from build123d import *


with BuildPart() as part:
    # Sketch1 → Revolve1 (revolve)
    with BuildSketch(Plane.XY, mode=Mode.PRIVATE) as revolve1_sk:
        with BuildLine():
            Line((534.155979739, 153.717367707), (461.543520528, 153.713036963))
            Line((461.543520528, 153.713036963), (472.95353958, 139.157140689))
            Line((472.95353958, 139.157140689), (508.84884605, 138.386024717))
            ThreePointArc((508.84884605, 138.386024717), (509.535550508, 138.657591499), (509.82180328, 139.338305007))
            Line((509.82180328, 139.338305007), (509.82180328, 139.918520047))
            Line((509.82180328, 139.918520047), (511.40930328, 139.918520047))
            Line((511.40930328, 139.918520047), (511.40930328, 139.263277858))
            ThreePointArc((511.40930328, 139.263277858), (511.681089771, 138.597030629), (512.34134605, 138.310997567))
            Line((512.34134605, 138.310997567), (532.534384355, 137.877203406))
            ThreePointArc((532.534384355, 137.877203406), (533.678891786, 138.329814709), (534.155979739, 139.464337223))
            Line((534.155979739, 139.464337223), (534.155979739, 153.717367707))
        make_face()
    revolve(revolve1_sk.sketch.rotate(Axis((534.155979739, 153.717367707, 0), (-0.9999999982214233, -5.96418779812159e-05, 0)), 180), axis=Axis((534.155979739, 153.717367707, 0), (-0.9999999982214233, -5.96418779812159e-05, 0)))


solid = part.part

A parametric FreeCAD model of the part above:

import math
import FreeCAD as App
import Part
import Sketcher

V = App.Vector
Q = App.Units.Quantity

doc = App.newDocument("Part")
body = doc.addObject("PartDesign::Body", "Body")

sketch1 = body.newObject("Sketcher::SketchObject", "Sketch")
sketch1.AttachmentSupport = (doc.getObject("XY_Plane"), [""])
sketch1.MapMode = "FlatFace"
sketch1.addGeometry([
    Part.LineSegment(V(534.2, 153.7, 0), V(461.5, 153.7, 0)),
    Part.LineSegment(V(461.5, 153.7, 0), V(473, 139.2, 0)),
    Part.LineSegment(V(473, 139.2, 0), V(508.8, 138.4, 0)),
    Part.ArcOfCircle(Part.Circle(V(508.9, 139.3, 0), V(0, 0, 1), 1), math.radians(-91), math.radians(0)),
    Part.LineSegment(V(509.8, 139.3, 0), V(509.8, 139.9, 0)),
    Part.LineSegment(V(509.8, 139.9, 0), V(511.4, 139.9, 0)),
    Part.LineSegment(V(511.4, 139.9, 0), V(511.4, 139.3, 0)),
    Part.ArcOfCircle(Part.Circle(V(512.4, 139.3, 0), V(0, 0, 1), 1), math.radians(180), math.radians(269)),
    Part.LineSegment(V(512.3, 138.3, 0), V(532.5, 137.9, 0)),
    Part.ArcOfCircle(Part.Circle(V(532.6, 139.5, 0), V(0, 0, 1), 1.6), math.radians(-91), math.radians(0)),
    Part.LineSegment(V(534.2, 139.5, 0), V(534.2, 153.7, 0)),
], False)
sketch1.addGeometry(Part.LineSegment(V(534.2, 153.7, 0), V(461.5, 153.7, 0)), True)
sketch1.addConstraint([
    Sketcher.Constraint("Coincident", 0, 2, 1, 1),
    Sketcher.Constraint("Coincident", 1, 2, 2, 1),
    Sketcher.Constraint("Tangent", 2, 2, 3, 1),
    Sketcher.Constraint("Tangent", 3, 2, 4, 1),
    Sketcher.Constraint("Coincident", 4, 2, 5, 1),
    Sketcher.Constraint("Coincident", 5, 2, 6, 1),
    Sketcher.Constraint("Tangent", 6, 2, 7, 1),
    Sketcher.Constraint("Tangent", 7, 2, 8, 1),
    Sketcher.Constraint("Tangent", 8, 2, 9, 1),
    Sketcher.Constraint("Tangent", 9, 2, 10, 1),
    Sketcher.Constraint("Coincident", 10, 2, 0, 1),
    Sketcher.Constraint("Vertical", 4),
    Sketcher.Constraint("Horizontal", 5),
    Sketcher.Constraint("Vertical", 6),
    Sketcher.Constraint("Vertical", 10),
    Sketcher.Constraint("Coincident", 11, 1, 10, 2),
    Sketcher.Constraint("Coincident", 11, 2, 0, 2),
    Sketcher.Constraint("Equal", 3, 7),
    Sketcher.Constraint("Parallel", 2, 8),
    Sketcher.Constraint("Radius", 9, Q("0.0625 in")),
    Sketcher.Constraint("Radius", 3, Q("0.0375 in")),
    Sketcher.Constraint("DistanceX", 3, 2, 7, 3, Q("0.1 in")),
    Sketcher.Constraint("DistanceY", 10, 1, 10, 2, 14.25303),
    Sketcher.Constraint("DistanceY", 9, 3, 0, 2, 14.2487),
    Sketcher.Constraint("Distance", 0, 72.612459),
    Sketcher.Constraint("Distance", 2, 35.903588),
    Sketcher.Constraint("DistanceY", 4, 1, 4, 2, 0.580215),
    Sketcher.Constraint("DistanceY", 6, 2, 6, 1, 0.655242),
    Sketcher.Constraint("DistanceX", -1, 1, 9, 3, 532.56848),
    Sketcher.Constraint("DistanceX", -1, 1, 1, 2, 472.95354),
    Sketcher.Constraint("DistanceY", -1, 1, 1, 2, 139.157141),
    Sketcher.Constraint("DistanceY", -1, 1, 4, 2, 139.91852),
])
revolution = body.newObject("PartDesign::Revolution", "Revolution")
revolution.Profile = sketch1
revolution.ReferenceAxis = (sketch1, ["Axis0"])
revolution.Angle = 360

doc.recompute()
